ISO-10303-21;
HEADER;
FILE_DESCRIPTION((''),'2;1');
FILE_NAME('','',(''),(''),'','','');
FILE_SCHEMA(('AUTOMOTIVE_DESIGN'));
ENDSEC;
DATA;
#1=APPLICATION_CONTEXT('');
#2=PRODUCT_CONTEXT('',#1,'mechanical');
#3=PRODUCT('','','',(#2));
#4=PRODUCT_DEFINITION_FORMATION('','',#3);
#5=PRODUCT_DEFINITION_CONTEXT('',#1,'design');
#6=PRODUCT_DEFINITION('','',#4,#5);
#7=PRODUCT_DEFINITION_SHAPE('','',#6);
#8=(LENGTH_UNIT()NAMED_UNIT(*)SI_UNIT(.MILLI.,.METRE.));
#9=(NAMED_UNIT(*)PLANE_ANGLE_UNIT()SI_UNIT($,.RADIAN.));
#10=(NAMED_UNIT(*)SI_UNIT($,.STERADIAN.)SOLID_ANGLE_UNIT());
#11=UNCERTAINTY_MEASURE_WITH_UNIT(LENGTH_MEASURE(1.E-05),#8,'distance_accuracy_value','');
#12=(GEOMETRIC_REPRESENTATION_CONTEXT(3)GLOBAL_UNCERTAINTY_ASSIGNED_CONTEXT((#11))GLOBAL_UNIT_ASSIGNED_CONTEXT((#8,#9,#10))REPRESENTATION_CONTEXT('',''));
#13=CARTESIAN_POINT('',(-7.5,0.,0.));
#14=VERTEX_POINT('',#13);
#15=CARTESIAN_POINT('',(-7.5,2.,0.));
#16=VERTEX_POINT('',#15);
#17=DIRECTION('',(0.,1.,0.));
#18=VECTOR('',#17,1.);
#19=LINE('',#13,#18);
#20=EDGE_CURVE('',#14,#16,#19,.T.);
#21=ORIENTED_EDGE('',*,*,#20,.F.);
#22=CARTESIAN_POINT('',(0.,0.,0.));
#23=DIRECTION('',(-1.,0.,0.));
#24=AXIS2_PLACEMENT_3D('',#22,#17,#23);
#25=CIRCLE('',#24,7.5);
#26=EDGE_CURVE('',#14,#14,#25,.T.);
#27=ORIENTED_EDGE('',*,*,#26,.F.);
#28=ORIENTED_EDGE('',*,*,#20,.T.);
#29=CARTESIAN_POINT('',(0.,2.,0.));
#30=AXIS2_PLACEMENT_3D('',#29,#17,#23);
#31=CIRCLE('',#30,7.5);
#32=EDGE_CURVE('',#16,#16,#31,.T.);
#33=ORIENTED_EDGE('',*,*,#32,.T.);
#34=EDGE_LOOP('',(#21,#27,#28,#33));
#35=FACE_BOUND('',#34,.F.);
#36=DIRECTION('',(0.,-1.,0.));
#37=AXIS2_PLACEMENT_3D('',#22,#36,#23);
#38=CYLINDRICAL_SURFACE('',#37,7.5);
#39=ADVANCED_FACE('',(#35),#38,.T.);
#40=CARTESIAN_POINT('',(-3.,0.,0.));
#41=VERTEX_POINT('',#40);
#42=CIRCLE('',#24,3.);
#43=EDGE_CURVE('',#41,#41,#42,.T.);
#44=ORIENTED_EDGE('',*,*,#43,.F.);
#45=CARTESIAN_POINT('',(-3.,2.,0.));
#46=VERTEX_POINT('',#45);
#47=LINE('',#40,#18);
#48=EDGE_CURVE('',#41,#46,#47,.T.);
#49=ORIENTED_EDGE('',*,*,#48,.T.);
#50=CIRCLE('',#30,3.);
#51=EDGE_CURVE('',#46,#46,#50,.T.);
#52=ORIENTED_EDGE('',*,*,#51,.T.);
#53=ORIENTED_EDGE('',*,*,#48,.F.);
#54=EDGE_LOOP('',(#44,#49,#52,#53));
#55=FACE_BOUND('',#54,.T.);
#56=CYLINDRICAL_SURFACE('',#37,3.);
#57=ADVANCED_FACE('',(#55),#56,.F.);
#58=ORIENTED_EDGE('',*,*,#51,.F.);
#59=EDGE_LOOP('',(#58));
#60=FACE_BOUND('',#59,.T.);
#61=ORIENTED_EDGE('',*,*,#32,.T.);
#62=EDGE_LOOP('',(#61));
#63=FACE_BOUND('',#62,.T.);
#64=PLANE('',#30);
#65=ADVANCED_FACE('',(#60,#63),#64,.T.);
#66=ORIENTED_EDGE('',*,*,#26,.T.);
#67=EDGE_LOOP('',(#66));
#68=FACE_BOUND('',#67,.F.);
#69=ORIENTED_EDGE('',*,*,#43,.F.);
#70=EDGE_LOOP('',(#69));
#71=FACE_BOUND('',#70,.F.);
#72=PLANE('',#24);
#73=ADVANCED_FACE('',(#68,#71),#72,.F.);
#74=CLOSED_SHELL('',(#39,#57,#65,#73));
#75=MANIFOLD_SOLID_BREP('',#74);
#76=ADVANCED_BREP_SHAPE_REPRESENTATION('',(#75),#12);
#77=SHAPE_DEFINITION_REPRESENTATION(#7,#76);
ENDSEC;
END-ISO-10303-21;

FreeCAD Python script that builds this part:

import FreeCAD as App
import Part
import Sketcher

V = App.Vector

doc = App.newDocument("Part")
body = doc.addObject("PartDesign::Body", "Body")

# Sketch on XZ plane
sketch1 = doc.addObject("Sketcher::SketchObject", "Sketch")
body.addObject(sketch1)
sketch1.AttachmentSupport = (doc.XZ_Plane, [""])
sketch1.MapMode = "FlatFace"
sketch1.addGeometry([
    Part.Circle(V(0, 0, 0), V(0, 0, 1), 7.5),
    Part.Circle(V(0, 0, 0), V(0, 0, 1), 3),
], False)
sketch1.addConstraint([
    Sketcher.Constraint("Coincident", 0, 3, -1, 1),
    Sketcher.Constraint("Coincident", 1, 3, -1, 1),
    Sketcher.Constraint("Diameter", 0, 15.0),
    Sketcher.Constraint("Diameter", 1, 6.0),
])
pad1 = doc.addObject("PartDesign::Pad", "Pad")
body.addObject(pad1)
pad1.Profile = sketch1
pad1.Length = 2
pad1.Reversed = True

doc.recompute()
